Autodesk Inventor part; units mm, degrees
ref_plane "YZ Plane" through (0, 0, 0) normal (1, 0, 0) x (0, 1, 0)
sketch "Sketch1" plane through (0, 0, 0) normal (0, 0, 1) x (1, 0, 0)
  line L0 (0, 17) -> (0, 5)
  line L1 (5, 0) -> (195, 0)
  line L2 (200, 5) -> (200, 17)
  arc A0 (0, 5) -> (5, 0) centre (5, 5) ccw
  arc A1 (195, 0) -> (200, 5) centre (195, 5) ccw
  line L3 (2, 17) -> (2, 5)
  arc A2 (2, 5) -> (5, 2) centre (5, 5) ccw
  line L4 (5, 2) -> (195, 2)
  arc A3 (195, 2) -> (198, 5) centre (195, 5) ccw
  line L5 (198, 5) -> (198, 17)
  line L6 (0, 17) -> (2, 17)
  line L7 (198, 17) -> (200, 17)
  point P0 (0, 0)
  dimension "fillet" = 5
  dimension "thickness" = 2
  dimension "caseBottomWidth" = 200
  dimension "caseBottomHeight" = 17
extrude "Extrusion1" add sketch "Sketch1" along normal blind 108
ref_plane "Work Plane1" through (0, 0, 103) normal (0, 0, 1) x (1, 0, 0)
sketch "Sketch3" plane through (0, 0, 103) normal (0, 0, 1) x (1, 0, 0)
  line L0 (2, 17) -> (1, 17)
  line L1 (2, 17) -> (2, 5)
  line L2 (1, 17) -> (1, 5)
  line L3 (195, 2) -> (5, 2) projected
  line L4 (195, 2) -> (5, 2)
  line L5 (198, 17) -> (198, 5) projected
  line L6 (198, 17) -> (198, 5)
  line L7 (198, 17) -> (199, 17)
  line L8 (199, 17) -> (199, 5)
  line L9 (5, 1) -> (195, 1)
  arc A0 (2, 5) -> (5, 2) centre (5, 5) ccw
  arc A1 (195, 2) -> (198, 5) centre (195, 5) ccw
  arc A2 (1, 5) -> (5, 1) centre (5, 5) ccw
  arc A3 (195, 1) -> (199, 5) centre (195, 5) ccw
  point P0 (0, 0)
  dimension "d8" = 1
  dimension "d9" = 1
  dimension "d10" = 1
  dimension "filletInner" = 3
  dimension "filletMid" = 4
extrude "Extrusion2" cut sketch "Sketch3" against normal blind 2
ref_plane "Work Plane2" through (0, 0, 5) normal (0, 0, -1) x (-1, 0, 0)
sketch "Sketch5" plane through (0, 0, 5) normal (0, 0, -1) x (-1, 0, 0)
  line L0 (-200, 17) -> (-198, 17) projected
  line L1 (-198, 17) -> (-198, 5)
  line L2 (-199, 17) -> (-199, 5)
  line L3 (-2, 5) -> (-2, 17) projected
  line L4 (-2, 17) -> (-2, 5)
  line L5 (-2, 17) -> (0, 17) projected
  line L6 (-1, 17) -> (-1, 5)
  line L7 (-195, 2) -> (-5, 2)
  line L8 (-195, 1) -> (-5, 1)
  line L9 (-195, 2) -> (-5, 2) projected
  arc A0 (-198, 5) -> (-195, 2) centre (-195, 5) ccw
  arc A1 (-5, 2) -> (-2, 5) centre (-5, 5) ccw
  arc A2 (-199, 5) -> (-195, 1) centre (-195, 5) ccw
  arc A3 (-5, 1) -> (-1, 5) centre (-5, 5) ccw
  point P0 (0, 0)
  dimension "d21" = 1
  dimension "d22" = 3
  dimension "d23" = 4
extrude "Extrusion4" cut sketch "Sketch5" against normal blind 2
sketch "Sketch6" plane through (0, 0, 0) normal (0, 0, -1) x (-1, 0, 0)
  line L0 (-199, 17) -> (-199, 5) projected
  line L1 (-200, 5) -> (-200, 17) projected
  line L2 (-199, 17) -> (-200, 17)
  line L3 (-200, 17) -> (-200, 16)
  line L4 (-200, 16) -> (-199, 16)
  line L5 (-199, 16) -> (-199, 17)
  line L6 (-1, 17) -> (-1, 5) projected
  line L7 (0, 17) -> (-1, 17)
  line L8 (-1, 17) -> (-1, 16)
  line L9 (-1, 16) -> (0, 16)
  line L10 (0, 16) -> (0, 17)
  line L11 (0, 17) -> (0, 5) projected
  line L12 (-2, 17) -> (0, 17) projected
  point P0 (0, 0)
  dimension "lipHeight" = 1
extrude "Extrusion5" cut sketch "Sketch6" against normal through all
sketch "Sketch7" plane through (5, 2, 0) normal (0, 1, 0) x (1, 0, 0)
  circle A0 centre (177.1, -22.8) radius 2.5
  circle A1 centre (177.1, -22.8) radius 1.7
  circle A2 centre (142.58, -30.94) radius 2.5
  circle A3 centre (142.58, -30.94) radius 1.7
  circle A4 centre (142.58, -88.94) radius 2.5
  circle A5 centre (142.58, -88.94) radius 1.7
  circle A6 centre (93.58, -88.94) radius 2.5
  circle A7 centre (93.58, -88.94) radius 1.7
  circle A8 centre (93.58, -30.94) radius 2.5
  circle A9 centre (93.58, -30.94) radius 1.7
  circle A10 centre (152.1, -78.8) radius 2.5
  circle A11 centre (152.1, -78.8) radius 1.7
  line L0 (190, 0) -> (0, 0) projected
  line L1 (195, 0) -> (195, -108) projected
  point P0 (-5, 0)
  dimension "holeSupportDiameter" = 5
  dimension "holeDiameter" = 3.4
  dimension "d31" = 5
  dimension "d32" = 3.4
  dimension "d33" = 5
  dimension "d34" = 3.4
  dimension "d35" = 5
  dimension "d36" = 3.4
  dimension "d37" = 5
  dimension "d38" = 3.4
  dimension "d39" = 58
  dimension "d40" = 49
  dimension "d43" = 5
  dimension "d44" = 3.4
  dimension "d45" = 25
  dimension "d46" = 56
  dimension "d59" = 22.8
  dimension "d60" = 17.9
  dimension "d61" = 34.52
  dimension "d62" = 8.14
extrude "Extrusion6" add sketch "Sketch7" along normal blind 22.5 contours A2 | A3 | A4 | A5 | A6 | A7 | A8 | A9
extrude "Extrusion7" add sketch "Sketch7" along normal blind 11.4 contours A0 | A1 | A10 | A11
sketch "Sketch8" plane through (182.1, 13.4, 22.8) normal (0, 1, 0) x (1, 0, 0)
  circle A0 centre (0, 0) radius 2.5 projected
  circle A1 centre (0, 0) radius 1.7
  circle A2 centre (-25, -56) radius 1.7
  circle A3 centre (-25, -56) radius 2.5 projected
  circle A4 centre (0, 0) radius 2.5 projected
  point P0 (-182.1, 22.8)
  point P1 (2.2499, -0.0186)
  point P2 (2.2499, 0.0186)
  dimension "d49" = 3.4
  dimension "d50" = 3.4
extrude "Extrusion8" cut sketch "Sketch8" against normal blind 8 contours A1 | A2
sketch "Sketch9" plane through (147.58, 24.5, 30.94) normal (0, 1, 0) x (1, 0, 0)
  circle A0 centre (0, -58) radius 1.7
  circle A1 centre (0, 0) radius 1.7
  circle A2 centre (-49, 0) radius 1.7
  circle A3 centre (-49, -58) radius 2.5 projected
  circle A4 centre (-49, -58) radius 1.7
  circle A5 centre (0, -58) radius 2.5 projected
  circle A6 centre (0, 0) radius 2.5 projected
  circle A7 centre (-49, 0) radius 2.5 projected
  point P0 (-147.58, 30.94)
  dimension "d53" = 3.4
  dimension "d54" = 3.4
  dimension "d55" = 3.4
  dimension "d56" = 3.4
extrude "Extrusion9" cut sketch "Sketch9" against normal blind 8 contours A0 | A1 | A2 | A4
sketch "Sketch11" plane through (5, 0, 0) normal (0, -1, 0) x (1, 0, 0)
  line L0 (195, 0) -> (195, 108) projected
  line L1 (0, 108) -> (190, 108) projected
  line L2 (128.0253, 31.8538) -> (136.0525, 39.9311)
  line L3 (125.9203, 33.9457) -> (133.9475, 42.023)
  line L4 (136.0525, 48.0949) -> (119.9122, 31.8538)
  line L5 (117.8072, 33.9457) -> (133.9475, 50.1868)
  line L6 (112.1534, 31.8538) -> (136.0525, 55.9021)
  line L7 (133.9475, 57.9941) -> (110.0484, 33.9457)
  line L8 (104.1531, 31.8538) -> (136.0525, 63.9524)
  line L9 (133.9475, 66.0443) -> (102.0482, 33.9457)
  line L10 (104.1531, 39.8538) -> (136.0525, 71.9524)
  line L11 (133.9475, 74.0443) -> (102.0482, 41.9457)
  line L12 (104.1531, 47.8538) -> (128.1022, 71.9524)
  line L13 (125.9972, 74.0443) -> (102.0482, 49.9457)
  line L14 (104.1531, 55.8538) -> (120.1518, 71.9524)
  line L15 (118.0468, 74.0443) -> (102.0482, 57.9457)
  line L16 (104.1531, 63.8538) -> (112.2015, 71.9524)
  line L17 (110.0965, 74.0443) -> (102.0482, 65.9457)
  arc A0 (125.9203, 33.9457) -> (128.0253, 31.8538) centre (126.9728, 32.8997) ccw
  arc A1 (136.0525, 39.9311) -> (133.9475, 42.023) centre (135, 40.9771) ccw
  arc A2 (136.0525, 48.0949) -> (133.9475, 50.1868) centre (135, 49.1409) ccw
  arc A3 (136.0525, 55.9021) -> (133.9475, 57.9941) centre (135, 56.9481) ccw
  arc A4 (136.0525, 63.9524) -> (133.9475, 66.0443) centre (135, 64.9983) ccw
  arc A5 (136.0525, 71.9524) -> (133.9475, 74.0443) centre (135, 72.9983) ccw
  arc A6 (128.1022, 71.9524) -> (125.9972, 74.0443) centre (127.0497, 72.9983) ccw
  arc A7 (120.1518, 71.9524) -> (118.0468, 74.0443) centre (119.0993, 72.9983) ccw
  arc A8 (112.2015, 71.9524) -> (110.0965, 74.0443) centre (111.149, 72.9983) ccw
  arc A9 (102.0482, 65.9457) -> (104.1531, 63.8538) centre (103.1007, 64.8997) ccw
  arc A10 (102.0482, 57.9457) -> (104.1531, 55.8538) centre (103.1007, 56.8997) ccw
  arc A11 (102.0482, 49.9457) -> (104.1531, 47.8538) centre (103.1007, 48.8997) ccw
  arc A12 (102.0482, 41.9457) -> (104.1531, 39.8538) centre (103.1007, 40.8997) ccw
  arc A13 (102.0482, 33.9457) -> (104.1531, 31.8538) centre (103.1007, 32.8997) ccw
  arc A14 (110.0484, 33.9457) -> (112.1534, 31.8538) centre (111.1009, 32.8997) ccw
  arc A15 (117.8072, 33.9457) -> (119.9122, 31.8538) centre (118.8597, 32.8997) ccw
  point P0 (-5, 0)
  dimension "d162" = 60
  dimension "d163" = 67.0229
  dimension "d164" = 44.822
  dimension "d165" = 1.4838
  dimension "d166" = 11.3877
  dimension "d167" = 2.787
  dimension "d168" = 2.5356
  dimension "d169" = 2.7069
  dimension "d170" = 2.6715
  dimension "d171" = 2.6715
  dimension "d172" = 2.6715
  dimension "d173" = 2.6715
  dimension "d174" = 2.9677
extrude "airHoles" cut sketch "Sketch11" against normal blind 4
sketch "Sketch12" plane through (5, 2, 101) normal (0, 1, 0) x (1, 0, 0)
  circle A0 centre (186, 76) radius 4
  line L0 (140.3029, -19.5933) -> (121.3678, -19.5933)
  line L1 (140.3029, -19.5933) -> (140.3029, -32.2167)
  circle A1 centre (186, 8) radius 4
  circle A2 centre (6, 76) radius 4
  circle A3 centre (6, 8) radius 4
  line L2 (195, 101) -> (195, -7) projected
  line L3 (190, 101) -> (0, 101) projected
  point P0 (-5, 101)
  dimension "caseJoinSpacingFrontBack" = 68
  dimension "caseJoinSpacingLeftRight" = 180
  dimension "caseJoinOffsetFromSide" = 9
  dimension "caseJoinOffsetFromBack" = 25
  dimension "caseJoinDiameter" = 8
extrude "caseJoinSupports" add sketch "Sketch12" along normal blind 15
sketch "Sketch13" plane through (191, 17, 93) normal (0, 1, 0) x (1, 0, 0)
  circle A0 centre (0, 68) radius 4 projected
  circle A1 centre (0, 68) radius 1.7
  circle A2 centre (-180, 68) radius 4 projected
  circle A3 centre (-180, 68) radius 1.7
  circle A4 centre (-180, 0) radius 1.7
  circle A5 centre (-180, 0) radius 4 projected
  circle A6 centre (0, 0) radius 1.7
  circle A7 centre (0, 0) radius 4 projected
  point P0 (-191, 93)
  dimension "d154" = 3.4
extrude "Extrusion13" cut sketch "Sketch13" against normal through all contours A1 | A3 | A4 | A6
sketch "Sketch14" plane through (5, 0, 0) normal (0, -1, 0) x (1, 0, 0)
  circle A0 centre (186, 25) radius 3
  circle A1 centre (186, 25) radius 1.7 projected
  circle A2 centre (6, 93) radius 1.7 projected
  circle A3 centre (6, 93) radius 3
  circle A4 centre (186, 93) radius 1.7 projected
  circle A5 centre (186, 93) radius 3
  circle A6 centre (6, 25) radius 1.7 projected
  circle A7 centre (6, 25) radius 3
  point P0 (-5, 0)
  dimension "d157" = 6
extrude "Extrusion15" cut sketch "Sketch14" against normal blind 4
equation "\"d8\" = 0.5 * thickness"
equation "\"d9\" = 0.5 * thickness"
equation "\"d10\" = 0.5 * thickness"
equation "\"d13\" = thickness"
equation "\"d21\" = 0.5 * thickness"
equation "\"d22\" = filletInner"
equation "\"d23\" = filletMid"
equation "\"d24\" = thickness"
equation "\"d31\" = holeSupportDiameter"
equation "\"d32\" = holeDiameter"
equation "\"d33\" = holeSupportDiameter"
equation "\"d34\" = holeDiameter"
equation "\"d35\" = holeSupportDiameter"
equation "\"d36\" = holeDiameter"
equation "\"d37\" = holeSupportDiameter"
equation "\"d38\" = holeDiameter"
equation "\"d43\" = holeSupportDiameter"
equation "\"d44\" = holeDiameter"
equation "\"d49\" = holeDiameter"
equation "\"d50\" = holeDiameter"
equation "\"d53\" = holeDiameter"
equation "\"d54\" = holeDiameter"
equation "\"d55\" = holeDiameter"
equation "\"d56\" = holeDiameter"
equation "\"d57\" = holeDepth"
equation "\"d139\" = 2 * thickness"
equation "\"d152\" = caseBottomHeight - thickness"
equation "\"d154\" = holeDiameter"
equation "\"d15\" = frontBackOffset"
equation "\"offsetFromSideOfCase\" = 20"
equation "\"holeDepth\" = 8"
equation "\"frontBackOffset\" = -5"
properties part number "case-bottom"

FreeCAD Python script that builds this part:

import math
import FreeCAD as App
import Part
import Sketcher
Q = App.Units.Quantity


def add_polygon(sketch, points):
    """Adds a closed chain of lines whose ends are joined by coincident constraints."""
    first, n = sketch.GeometryCount, len(points)
    for a, b in zip(points, points[1:] + points[:1]):
        sketch.addGeometry(Part.LineSegment(App.Vector(*a, 0), App.Vector(*b, 0)), False)
    for i in range(n):
        sketch.addConstraint(Sketcher.Constraint("Coincident", first + i, 2, first + (i + 1) % n, 1))

doc = App.newDocument("Part")
body = doc.addObject("PartDesign::Body", "Body")

# Sketch on XY plane
sketch1 = body.newObject("Sketcher::SketchObject", "Sketch")
sketch1.AttachmentSupport = (doc.getObject("XY_Plane"), [""])
sketch1.MapMode = "FlatFace"
sketch1.addGeometry(Part.LineSegment(App.Vector(2, 17, 0), App.Vector(0, 17, 0)), False)
sketch1.addGeometry(Part.LineSegment(App.Vector(0, 17, 0), App.Vector(0, 5, 0)), False)
sketch1.addGeometry(Part.ArcOfCircle(Part.Circle(App.Vector(5, 5, 0), App.Vector(0, 0, 1), 5), math.radians(180), math.radians(270)), False)
sketch1.addGeometry(Part.LineSegment(App.Vector(5, 0, 0), App.Vector(195, 0, 0)), False)
sketch1.addGeometry(Part.ArcOfCircle(Part.Circle(App.Vector(195, 5, 0), App.Vector(0, 0, 1), 5), math.radians(-90), math.radians(0)), False)
sketch1.addGeometry(Part.LineSegment(App.Vector(200, 5, 0), App.Vector(200, 17, 0)), False)
sketch1.addGeometry(Part.LineSegment(App.Vector(200, 17, 0), App.Vector(198, 17, 0)), False)
sketch1.addGeometry(Part.LineSegment(App.Vector(198, 17, 0), App.Vector(198, 5, 0)), False)
sketch1.addGeometry(Part.ArcOfCircle(Part.Circle(App.Vector(195, 5, 0), App.Vector(0, 0, 1), 3), math.radians(-90), math.radians(0)), False)
sketch1.addGeometry(Part.LineSegment(App.Vector(195, 2, 0), App.Vector(5, 2, 0)), False)
sketch1.addGeometry(Part.ArcOfCircle(Part.Circle(App.Vector(5, 5, 0), App.Vector(0, 0, 1), 3), math.radians(180), math.radians(270)), False)
sketch1.addGeometry(Part.LineSegment(App.Vector(2, 5, 0), App.Vector(2, 17, 0)), False)
sketch1.addConstraint(Sketcher.Constraint("Coincident", 0, 2, 1, 1))
sketch1.addConstraint(Sketcher.Constraint("Tangent", 1, 2, 2, 1))
sketch1.addConstraint(Sketcher.Constraint("Tangent", 2, 2, 3, 1))
sketch1.addConstraint(Sketcher.Constraint("Tangent", 3, 2, 4, 1))
sketch1.addConstraint(Sketcher.Constraint("Tangent", 4, 2, 5, 1))
sketch1.addConstraint(Sketcher.Constraint("Coincident", 5, 2, 6, 1))
sketch1.addConstraint(Sketcher.Constraint("Coincident", 6, 2, 7, 1))
sketch1.addConstraint(Sketcher.Constraint("Tangent", 7, 2, 8, 2))
sketch1.addConstraint(Sketcher.Constraint("Tangent", 8, 1, 9, 1))
sketch1.addConstraint(Sketcher.Constraint("Tangent", 9, 2, 10, 2))
sketch1.addConstraint(Sketcher.Constraint("Tangent", 10, 1, 11, 1))
sketch1.addConstraint(Sketcher.Constraint("Coincident", 11, 2, 0, 1))
sketch1.addConstraint(Sketcher.Constraint("Horizontal", 0))
sketch1.addConstraint(Sketcher.Constraint("Vertical", 1))
sketch1.addConstraint(Sketcher.Constraint("Horizontal", 3))
sketch1.addConstraint(Sketcher.Constraint("Vertical", 5))
sketch1.addConstraint(Sketcher.Constraint("Horizontal", 6))
sketch1.addConstraint(Sketcher.Constraint("Vertical", 7))
sketch1.addConstraint(Sketcher.Constraint("Horizontal", 9))
sketch1.addConstraint(Sketcher.Constraint("Vertical", 11))
sketch1.addConstraint(Sketcher.Constraint("Coincident", 8, 3, 4, 3))
sketch1.addConstraint(Sketcher.Constraint("Coincident", 10, 3, 2, 3))
sketch1.addConstraint(Sketcher.Constraint("Equal", 2, 4))
sketch1.addConstraint(Sketcher.Constraint("PointOnObject", 0, 2, -2))
sketch1.addConstraint(Sketcher.Constraint("PointOnObject", 2, 2, -1))
sketch1.addConstraint(Sketcher.Constraint("Horizontal", 0, 2, 5, 2))
sketch1.addConstraint(Sketcher.Constraint("Radius", 2, Q("5 mm")))
sketch1.addConstraint(Sketcher.Constraint("DistanceX", 0, 2, 0, 1, Q("2 mm")))
sketch1.addConstraint(Sketcher.Constraint("DistanceY", -1, 1, 0, 2, Q("17 mm")))
sketch1.addConstraint(Sketcher.Constraint("DistanceX", -1, 1, 4, 2, Q("200 mm")))
pad1 = body.newObject("PartDesign::Pad", "Pad")
pad1.Profile = sketch1
pad1.Length = 108

# Sketch on XY plane
sketch2 = body.newObject("Sketcher::SketchObject", "Sketch001")
sketch2.AttachmentSupport = (doc.getObject("XY_Plane"), [""])
sketch2.MapMode = "FlatFace"
sketch2.AttachmentOffset = App.Placement(App.Vector(0, 0, 103), App.Rotation())
sketch2.addGeometry(Part.LineSegment(App.Vector(2, 5, 0), App.Vector(2, 17, 0)), False)
sketch2.addGeometry(Part.LineSegment(App.Vector(2, 17, 0), App.Vector(1, 17, 0)), False)
sketch2.addGeometry(Part.LineSegment(App.Vector(1, 17, 0), App.Vector(1, 5, 0)), False)
sketch2.addGeometry(Part.ArcOfCircle(Part.Circle(App.Vector(5, 5, 0), App.Vector(0, 0, 1), 4), math.radians(180), math.radians(270)), False)
sketch2.addGeometry(Part.LineSegment(App.Vector(5, 1, 0), App.Vector(195, 1, 0)), False)
sketch2.addGeometry(Part.ArcOfCircle(Part.Circle(App.Vector(195, 5, 0), App.Vector(0, 0, 1), 4), math.radians(-90), math.radians(0)), False)
sketch2.addGeometry(Part.LineSegment(App.Vector(199, 5, 0), App.Vector(199, 17, 0)), False)
sketch2.addGeometry(Part.LineSegment(App.Vector(199, 17, 0), App.Vector(198, 17, 0)), False)
sketch2.addGeometry(Part.LineSegment(App.Vector(198, 17, 0), App.Vector(198, 5, 0)), False)
sketch2.addGeometry(Part.ArcOfCircle(Part.Circle(App.Vector(195, 5, 0), App.Vector(0, 0, 1), 3), math.radians(-90), math.radians(0)), False)
sketch2.addGeometry(Part.LineSegment(App.Vector(195, 2, 0), App.Vector(5, 2, 0)), False)
sketch2.addGeometry(Part.ArcOfCircle(Part.Circle(App.Vector(5, 5, 0), App.Vector(0, 0, 1), 3), math.radians(180), math.radians(270)), False)
sketch2.addConstraint(Sketcher.Constraint("Coincident", 0, 2, 1, 1))
sketch2.addConstraint(Sketcher.Constraint("Coincident", 1, 2, 2, 1))
sketch2.addConstraint(Sketcher.Constraint("Tangent", 2, 2, 3, 1))
sketch2.addConstraint(Sketcher.Constraint("Tangent", 3, 2, 4, 1))
sketch2.addConstraint(Sketcher.Constraint("Tangent", 4, 2, 5, 1))
sketch2.addConstraint(Sketcher.Constraint("Tangent", 5, 2, 6, 1))
sketch2.addConstraint(Sketcher.Constraint("Coincident", 6, 2, 7, 1))
sketch2.addConstraint(Sketcher.Constraint("Coincident", 7, 2, 8, 1))
sketch2.addConstraint(Sketcher.Constraint("Tangent", 8, 2, 9, 2))
sketch2.addConstraint(Sketcher.Constraint("Tangent", 9, 1, 10, 1))
sketch2.addConstraint(Sketcher.Constraint("Tangent", 10, 2, 11, 2))
sketch2.addConstraint(Sketcher.Constraint("Tangent", 11, 1, 0, 1))
sketch2.addConstraint(Sketcher.Constraint("Vertical", 0))
sketch2.addConstraint(Sketcher.Constraint("Horizontal", 1))
sketch2.addConstraint(Sketcher.Constraint("Vertical", 2))
sketch2.addConstraint(Sketcher.Constraint("Horizontal", 4))
sketch2.addConstraint(Sketcher.Constraint("Vertical", 6))
sketch2.addConstraint(Sketcher.Constraint("Horizontal", 7))
sketch2.addConstraint(Sketcher.Constraint("Vertical", 8))
sketch2.addConstraint(Sketcher.Constraint("Horizontal", 10))
sketch2.addConstraint(Sketcher.Constraint("Coincident", 9, 3, 5, 3))
sketch2.addConstraint(Sketcher.Constraint("Coincident", 11, 3, 3, 3))
sketch2.addConstraint(Sketcher.Constraint("Equal", 3, 5))
sketch2.addConstraint(Sketcher.Constraint("Horizontal", 1, 2, 6, 2))
sketch2.addConstraint(Sketcher.Constraint("Radius", 3, Q("4 mm")))
sketch2.addConstraint(Sketcher.Constraint("Radius", 9, Q("3 mm")))
sketch2.addConstraint(Sketcher.Constraint("DistanceX", -1, 1, 1, 2, Q("1 mm")))
sketch2.addConstraint(Sketcher.Constraint("DistanceY", -1, 1, 3, 2, Q("1 mm")))
sketch2.addConstraint(Sketcher.Constraint("DistanceX", 4, 1, 4, 2, Q("190 mm")))
sketch2.addConstraint(Sketcher.Constraint("DistanceY", 0, 1, 0, 2, Q("12 mm")))
pocket1 = body.newObject("PartDesign::Pocket", "Pocket")
pocket1.Profile = sketch2
pocket1.Length = 2

# Sketch on XY plane
sketch3 = body.newObject("Sketcher::SketchObject", "Sketch002")
sketch3.AttachmentSupport = (doc.getObject("XY_Plane"), [""])
sketch3.MapMode = "FlatFace"
sketch3.AttachmentOffset = App.Placement(App.Vector(0, 0, 5), App.Rotation())
sketch3.addGeometry(Part.LineSegment(App.Vector(198, 17, 0), App.Vector(199, 17, 0)), False)
sketch3.addGeometry(Part.LineSegment(App.Vector(199, 17, 0), App.Vector(199, 5, 0)), False)
sketch3.addGeometry(Part.ArcOfCircle(Part.Circle(App.Vector(195, 5, 0), App.Vector(0, 0, 1), 4), math.radians(-90), math.radians(0)), False)
sketch3.addGeometry(Part.LineSegment(App.Vector(195, 1, 0), App.Vector(5, 1, 0)), False)
sketch3.addGeometry(Part.ArcOfCircle(Part.Circle(App.Vector(5, 5, 0), App.Vector(0, 0, 1), 4), math.radians(180), math.radians(270)), False)
sketch3.addGeometry(Part.LineSegment(App.Vector(1, 5, 0), App.Vector(1, 17, 0)), False)
sketch3.addGeometry(Part.LineSegment(App.Vector(1, 17, 0), App.Vector(2, 17, 0)), False)
sketch3.addGeometry(Part.LineSegment(App.Vector(2, 17, 0), App.Vector(2, 5, 0)), False)
sketch3.addGeometry(Part.ArcOfCircle(Part.Circle(App.Vector(5, 5, 0), App.Vector(0, 0, 1), 3), math.radians(180), math.radians(270)), False)
sketch3.addGeometry(Part.LineSegment(App.Vector(5, 2, 0), App.Vector(195, 2, 0)), False)
sketch3.addGeometry(Part.ArcOfCircle(Part.Circle(App.Vector(195, 5, 0), App.Vector(0, 0, 1), 3), math.radians(-90), math.radians(0)), False)
sketch3.addGeometry(Part.LineSegment(App.Vector(198, 5, 0), App.Vector(198, 17, 0)), False)
sketch3.addConstraint(Sketcher.Constraint("Coincident", 0, 2, 1, 1))
sketch3.addConstraint(Sketcher.Constraint("Tangent", 1, 2, 2, 2))
sketch3.addConstraint(Sketcher.Constraint("Tangent", 2, 1, 3, 1))
sketch3.addConstraint(Sketcher.Constraint("Tangent", 3, 2, 4, 2))
sketch3.addConstraint(Sketcher.Constraint("Tangent", 4, 1, 5, 1))
sketch3.addConstraint(Sketcher.Constraint("Coincident", 5, 2, 6, 1))
sketch3.addConstraint(Sketcher.Constraint("Coincident", 6, 2, 7, 1))
sketch3.addConstraint(Sketcher.Constraint("Tangent", 7, 2, 8, 1))
sketch3.addConstraint(Sketcher.Constraint("Tangent", 8, 2, 9, 1))
sketch3.addConstraint(Sketcher.Constraint("Tangent", 9, 2, 10, 1))
sketch3.addConstraint(Sketcher.Constraint("Tangent", 10, 2, 11, 1))
sketch3.addConstraint(Sketcher.Constraint("Coincident", 11, 2, 0, 1))
sketch3.addConstraint(Sketcher.Constraint("Horizontal", 0))
sketch3.addConstraint(Sketcher.Constraint("Vertical", 1))
sketch3.addConstraint(Sketcher.Constraint("Horizontal", 3))
sketch3.addConstraint(Sketcher.Constraint("Vertical", 5))
sketch3.addConstraint(Sketcher.Constraint("Horizontal", 6))
sketch3.addConstraint(Sketcher.Constraint("Vertical", 7))
sketch3.addConstraint(Sketcher.Constraint("Horizontal", 9))
sketch3.addConstraint(Sketcher.Constraint("Vertical", 11))
sketch3.addConstraint(Sketcher.Constraint("Coincident", 8, 3, 4, 3))
sketch3.addConstraint(Sketcher.Constraint("Coincident", 10, 3, 2, 3))
sketch3.addConstraint(Sketcher.Constraint("Equal", 2, 4))
sketch3.addConstraint(Sketcher.Constraint("Horizontal", 0, 2, 5, 2))
sketch3.addConstraint(Sketcher.Constraint("Radius", 2, Q("4 mm")))
sketch3.addConstraint(Sketcher.Constraint("Radius", 8, Q("3 mm")))
sketch3.addConstraint(Sketcher.Constraint("DistanceY", -1, 1, 2, 1, Q("1 mm")))
sketch3.addConstraint(Sketcher.Constraint("DistanceX", -1, 1, 4, 1, Q("1 mm")))
sketch3.addConstraint(Sketcher.Constraint("DistanceX", 3, 2, 3, 1, Q("190 mm")))
sketch3.addConstraint(Sketcher.Constraint("DistanceY", 1, 2, 1, 1, Q("12 mm")))
pocket2 = body.newObject("PartDesign::Pocket", "Pocket001")
pocket2.Profile = sketch3
pocket2.Length = 2
pocket2.Reversed = True

# Sketch on XY plane
sketch4 = body.newObject("Sketcher::SketchObject", "Sketch003")
sketch4.AttachmentSupport = (doc.getObject("XY_Plane"), [""])
sketch4.MapMode = "FlatFace"
add_polygon(sketch4, [(199, 16), (199, 17), (200, 17), (200, 16)])  # lines 0-3
add_polygon(sketch4, [(0, 17), (1, 17), (1, 16), (0, 16)])  # lines 4-7
sketch4.addConstraint(Sketcher.Constraint("Vertical", 0))
sketch4.addConstraint(Sketcher.Constraint("Horizontal", 1))
sketch4.addConstraint(Sketcher.Constraint("Vertical", 2))
sketch4.addConstraint(Sketcher.Constraint("Horizontal", 3))
sketch4.addConstraint(Sketcher.Constraint("Horizontal", 4))
sketch4.addConstraint(Sketcher.Constraint("Vertical", 5))
sketch4.addConstraint(Sketcher.Constraint("Horizontal", 6))
sketch4.addConstraint(Sketcher.Constraint("Vertical", 7))
sketch4.addConstraint(Sketcher.Constraint("PointOnObject", 6, 2, -2))
sketch4.addConstraint(Sketcher.Constraint("Horizontal", 1, 2, 4, 2))
sketch4.addConstraint(Sketcher.Constraint("Horizontal", 3, 2, 5, 2))
sketch4.addConstraint(Sketcher.Constraint("Equal", 3, 4))
sketch4.addConstraint(Sketcher.Constraint("Equal", 6, 0))
sketch4.addConstraint(Sketcher.Constraint("DistanceX", 1, 1, 1, 2, Q("1 mm")))
sketch4.addConstraint(Sketcher.Constraint("DistanceX", -1, 1, 0, 2, Q("199 mm")))
sketch4.addConstraint(Sketcher.Constraint("DistanceY", -1, 1, 0, 2, Q("17 mm")))
pocket3 = body.newObject("PartDesign::Pocket", "Pocket002")
pocket3.Profile = sketch4
pocket3.Type = "ThroughAll"
pocket3.Reversed = True

# Sketch on XZ plane
sketch5 = body.newObject("Sketcher::SketchObject", "Sketch004")
sketch5.AttachmentSupport = (doc.getObject("XZ_Plane"), [""])
sketch5.MapMode = "FlatFace"
sketch5.AttachmentOffset = App.Placement(App.Vector(0, 0, -2), App.Rotation())
sketch5.addGeometry(Part.Circle(App.Vector(147.6, 30.9, 0), App.Vector(0, 0, 1), 2.5), False)
sketch5.addGeometry(Part.Circle(App.Vector(147.6, 88.9, 0), App.Vector(0, 0, 1), 2.5), False)
sketch5.addGeometry(Part.Circle(App.Vector(98.6, 88.9, 0), App.Vector(0, 0, 1), 2.5), False)
sketch5.addGeometry(Part.Circle(App.Vector(98.6, 30.9, 0), App.Vector(0, 0, 1), 2.5), False)
sketch5.addConstraint(Sketcher.Constraint("Equal", 0, 1))
sketch5.addConstraint(Sketcher.Constraint("Equal", 1, 2))
sketch5.addConstraint(Sketcher.Constraint("Equal", 2, 3))
sketch5.addConstraint(Sketcher.Constraint("Horizontal", 1, 3, 2, 3))
sketch5.addConstraint(Sketcher.Constraint("Horizontal", 0, 3, 3, 3))
sketch5.addConstraint(Sketcher.Constraint("Vertical", 0, 3, 1, 3))
sketch5.addConstraint(Sketcher.Constraint("Vertical", 2, 3, 3, 3))
sketch5.addConstraint(Sketcher.Constraint("Diameter", 0, Q("5 mm")))
sketch5.addConstraint(Sketcher.Constraint("DistanceY", 0, 3, 1, 3, Q("58 mm")))
sketch5.addConstraint(Sketcher.Constraint("DistanceX", 2, 3, 1, 3, Q("49 mm")))
sketch5.addConstraint(Sketcher.Constraint("DistanceX", -1, 1, 0, 3, Q("147.58 mm")))
sketch5.addConstraint(Sketcher.Constraint("DistanceY", -1, 1, 0, 3, Q("30.94 mm")))
pad2 = body.newObject("PartDesign::Pad", "Pad001")
pad2.Profile = sketch5
pad2.Length = 22.5
pad2.Reversed = True

# Sketch on XZ plane
sketch6 = body.newObject("Sketcher::SketchObject", "Sketch005")
sketch6.AttachmentSupport = (doc.getObject("XZ_Plane"), [""])
sketch6.MapMode = "FlatFace"
sketch6.AttachmentOffset = App.Placement(App.Vector(0, 0, -2), App.Rotation())
sketch6.addGeometry(Part.Circle(App.Vector(182.1, 22.8, 0), App.Vector(0, 0, 1), 2.5), False)
sketch6.addGeometry(Part.Circle(App.Vector(157.1, 78.8, 0), App.Vector(0, 0, 1), 2.5), False)
sketch6.addConstraint(Sketcher.Constraint("Equal", 0, 1))
sketch6.addConstraint(Sketcher.Constraint("Diameter", 0, Q("5 mm")))
sketch6.addConstraint(Sketcher.Constraint("DistanceX", 1, 3, 0, 3, Q("25 mm")))
sketch6.addConstraint(Sketcher.Constraint("DistanceY", 0, 3, 1, 3, Q("56 mm")))
sketch6.addConstraint(Sketcher.Constraint("DistanceY", -1, 1, 0, 3, Q("22.8 mm")))
sketch6.addConstraint(Sketcher.Constraint("DistanceX", -1, 1, 0, 3, Q("182.1 mm")))
pad3 = body.newObject("PartDesign::Pad", "Pad002")
pad3.Profile = sketch6
pad3.Length = 11.4
pad3.Reversed = True

# Sketch on XZ plane
sketch7 = body.newObject("Sketcher::SketchObject", "Sketch006")
sketch7.AttachmentSupport = (doc.getObject("XZ_Plane"), [""])
sketch7.MapMode = "FlatFace"
sketch7.AttachmentOffset = App.Placement(App.Vector(0, 0, -13.4), App.Rotation())
sketch7.addGeometry(Part.Circle(App.Vector(182.1, 22.8, 0), App.Vector(0, 0, 1), 1.7), False)
sketch7.addGeometry(Part.Circle(App.Vector(157.1, 78.8, 0), App.Vector(0, 0, 1), 1.7), False)
sketch7.addConstraint(Sketcher.Constraint("Equal", 0, 1))
sketch7.addConstraint(Sketcher.Constraint("Diameter", 0, Q("3.4 mm")))
sketch7.addConstraint(Sketcher.Constraint("DistanceX", 1, 3, 0, 3, Q("25 mm")))
sketch7.addConstraint(Sketcher.Constraint("DistanceY", 0, 3, 1, 3, Q("56 mm")))
sketch7.addConstraint(Sketcher.Constraint("DistanceX", -1, 1, 0, 3, Q("182.1 mm")))
sketch7.addConstraint(Sketcher.Constraint("DistanceY", -1, 1, 0, 3, Q("22.8 mm")))
pocket4 = body.newObject("PartDesign::Pocket", "Pocket003")
pocket4.Profile = sketch7
pocket4.Length = 8
pocket4.Reversed = True

# Sketch on XZ plane
sketch8 = body.newObject("Sketcher::SketchObject", "Sketch007")
sketch8.AttachmentSupport = (doc.getObject("XZ_Plane"), [""])
sketch8.MapMode = "FlatFace"
sketch8.AttachmentOffset = App.Placement(App.Vector(0, 0, -24.5), App.Rotation())
sketch8.addGeometry(Part.Circle(App.Vector(147.6, 88.9, 0), App.Vector(0, 0, 1), 1.7), False)
sketch8.addGeometry(Part.Circle(App.Vector(147.6, 30.9, 0), App.Vector(0, 0, 1), 1.7), False)
sketch8.addGeometry(Part.Circle(App.Vector(98.6, 30.9, 0), App.Vector(0, 0, 1), 1.7), False)
sketch8.addGeometry(Part.Circle(App.Vector(98.6, 88.9, 0), App.Vector(0, 0, 1), 1.7), False)
sketch8.addConstraint(Sketcher.Constraint("Equal", 0, 1))
sketch8.addConstraint(Sketcher.Constraint("Equal", 1, 2))
sketch8.addConstraint(Sketcher.Constraint("Equal", 2, 3))
sketch8.addConstraint(Sketcher.Constraint("Horizontal", 1, 3, 2, 3))
sketch8.addConstraint(Sketcher.Constraint("Horizontal", 0, 3, 3, 3))
sketch8.addConstraint(Sketcher.Constraint("Vertical", 0, 3, 1, 3))
sketch8.addConstraint(Sketcher.Constraint("Vertical", 2, 3, 3, 3))
sketch8.addConstraint(Sketcher.Constraint("Diameter", 0, Q("3.4 mm")))
sketch8.addConstraint(Sketcher.Constraint("DistanceY", 1, 3, 0, 3, Q("58 mm")))
sketch8.addConstraint(Sketcher.Constraint("DistanceX", 2, 3, 1, 3, Q("49 mm")))
sketch8.addConstraint(Sketcher.Constraint("DistanceX", -1, 1, 0, 3, Q("147.58 mm")))
sketch8.addConstraint(Sketcher.Constraint("DistanceY", -1, 1, 0, 3, Q("88.94 mm")))
pocket5 = body.newObject("PartDesign::Pocket", "Pocket004")
pocket5.Profile = sketch8
pocket5.Length = 8
pocket5.Reversed = True

# Sketch on XZ plane
sketch9 = body.newObject("Sketcher::SketchObject", "Sketch008")
sketch9.AttachmentSupport = (doc.getObject("XZ_Plane"), [""])
sketch9.MapMode = "FlatFace"
sketch9.addGeometry(Part.ArcOfCircle(Part.Circle(App.Vector(132, 32.9, 0), App.Vector(0, 0, 1), 1.5), math.radians(135), math.radians(315)), False)
sketch9.addGeometry(Part.LineSegment(App.Vector(133, 31.9, 0), App.Vector(141.1, 39.9, 0)), False)
sketch9.addGeometry(Part.ArcOfCircle(Part.Circle(App.Vector(140, 41, 0), App.Vector(0, 0, 1), 1.5), math.radians(-45), math.radians(135)), False)
sketch9.addGeometry(Part.LineSegment(App.Vector(138.9, 42, 0), App.Vector(130.9, 33.9, 0)), False)
sketch9.addGeometry(Part.LineSegment(App.Vector(124.9, 31.9, 0), App.Vector(141.1, 48.1, 0)), False)
sketch9.addGeometry(Part.ArcOfCircle(Part.Circle(App.Vector(140, 49.1, 0), App.Vector(0, 0, 1), 1.5), math.radians(-45), math.radians(135)), False)
sketch9.addGeometry(Part.LineSegment(App.Vector(138.9, 50.2, 0), App.Vector(122.8, 33.9, 0)), False)
sketch9.addGeometry(Part.ArcOfCircle(Part.Circle(App.Vector(123.9, 32.9, 0), App.Vector(0, 0, 1), 1.5), math.radians(135), math.radians(315)), False)
sketch9.addGeometry(Part.ArcOfCircle(Part.Circle(App.Vector(116.1, 32.9, 0), App.Vector(0, 0, 1), 1.5), math.radians(135), math.radians(315)), False)
sketch9.addGeometry(Part.LineSegment(App.Vector(117.2, 31.9, 0), App.Vector(141.1, 55.9, 0)), False)
sketch9.addGeometry(Part.ArcOfCircle(Part.Circle(App.Vector(140, 56.9, 0), App.Vector(0, 0, 1), 1.5), math.radians(-45), math.radians(135)), False)
sketch9.addGeometry(Part.LineSegment(App.Vector(138.9, 58, 0), App.Vector(115, 33.9, 0)), False)
sketch9.addGeometry(Part.ArcOfCircle(Part.Circle(App.Vector(108.1, 32.9, 0), App.Vector(0, 0, 1), 1.5), math.radians(135), math.radians(315)), False)
sketch9.addGeometry(Part.LineSegment(App.Vector(109.2, 31.9, 0), App.Vector(141.1, 64, 0)), False)
sketch9.addGeometry(Part.ArcOfCircle(Part.Circle(App.Vector(140, 65, 0), App.Vector(0, 0, 1), 1.5), math.radians(-45), math.radians(135)), False)
sketch9.addGeometry(Part.LineSegment(App.Vector(138.9, 66, 0), App.Vector(107, 33.9, 0)), False)
sketch9.addGeometry(Part.ArcOfCircle(Part.Circle(App.Vector(108.1, 40.9, 0), App.Vector(0, 0, 1), 1.5), math.radians(135), math.radians(315)), False)
sketch9.addGeometry(Part.LineSegment(App.Vector(109.2, 39.9, 0), App.Vector(141.1, 72, 0)), False)
sketch9.addGeometry(Part.ArcOfCircle(Part.Circle(App.Vector(140, 73, 0), App.Vector(0, 0, 1), 1.5), math.radians(-45), math.radians(135)), False)
sketch9.addGeometry(Part.LineSegment(App.Vector(138.9, 74, 0), App.Vector(107, 41.9, 0)), False)
sketch9.addGeometry(Part.ArcOfCircle(Part.Circle(App.Vector(108.1, 48.9, 0), App.Vector(0, 0, 1), 1.5), math.radians(135), math.radians(315)), False)
sketch9.addGeometry(Part.LineSegment(App.Vector(109.2, 47.9, 0), App.Vector(133.1, 72, 0)), False)
sketch9.addGeometry(Part.ArcOfCircle(Part.Circle(App.Vector(132, 73, 0), App.Vector(0, 0, 1), 1.5), math.radians(-45), math.radians(135)), False)
sketch9.addGeometry(Part.LineSegment(App.Vector(131, 74, 0), App.Vector(107, 49.9, 0)), False)
sketch9.addGeometry(Part.ArcOfCircle(Part.Circle(App.Vector(108.1, 56.9, 0), App.Vector(0, 0, 1), 1.5), math.radians(135), math.radians(315)), False)
sketch9.addGeometry(Part.LineSegment(App.Vector(109.2, 55.9, 0), App.Vector(125.2, 72, 0)), False)
sketch9.addGeometry(Part.ArcOfCircle(Part.Circle(App.Vector(124.1, 73, 0), App.Vector(0, 0, 1), 1.5), math.radians(-45), math.radians(135)), False)
sketch9.addGeometry(Part.LineSegment(App.Vector(123, 74, 0), App.Vector(107, 57.9, 0)), False)
sketch9.addGeometry(Part.ArcOfCircle(Part.Circle(App.Vector(108.1, 64.9, 0), App.Vector(0, 0, 1), 1.5), math.radians(135), math.radians(315)), False)
sketch9.addGeometry(Part.LineSegment(App.Vector(109.2, 63.9, 0), App.Vector(117.2, 72, 0)), False)
sketch9.addGeometry(Part.ArcOfCircle(Part.Circle(App.Vector(116.1, 73, 0), App.Vector(0, 0, 1), 1.5), math.radians(-45), math.radians(135)), False)
sketch9.addGeometry(Part.LineSegment(App.Vector(115.1, 74, 0), App.Vector(107, 65.9, 0)), False)
sketch9.addConstraint(Sketcher.Constraint("Tangent", 0, 2, 1, 1))
sketch9.addConstraint(Sketcher.Constraint("Tangent", 1, 2, 2, 1))
sketch9.addConstraint(Sketcher.Constraint("Tangent", 2, 2, 3, 1))
sketch9.addConstraint(Sketcher.Constraint("Tangent", 3, 2, 0, 1))
sketch9.addConstraint(Sketcher.Constraint("Tangent", 4, 2, 5, 1))
sketch9.addConstraint(Sketcher.Constraint("Tangent", 5, 2, 6, 1))
sketch9.addConstraint(Sketcher.Constraint("Tangent", 6, 2, 7, 1))
sketch9.addConstraint(Sketcher.Constraint("Tangent", 7, 2, 4, 1))
sketch9.addConstraint(Sketcher.Constraint("Tangent", 8, 2, 9, 1))
sketch9.addConstraint(Sketcher.Constraint("Tangent", 9, 2, 10, 1))
sketch9.addConstraint(Sketcher.Constraint("Tangent", 10, 2, 11, 1))
sketch9.addConstraint(Sketcher.Constraint("Tangent", 11, 2, 8, 1))
sketch9.addConstraint(Sketcher.Constraint("Tangent", 12, 2, 13, 1))
sketch9.addConstraint(Sketcher.Constraint("Tangent", 13, 2, 14, 1))
sketch9.addConstraint(Sketcher.Constraint("Tangent", 14, 2, 15, 1))
sketch9.addConstraint(Sketcher.Constraint("Tangent", 15, 2, 12, 1))
sketch9.addConstraint(Sketcher.Constraint("Tangent", 16, 2, 17, 1))
sketch9.addConstraint(Sketcher.Constraint("Tangent", 17, 2, 18, 1))
sketch9.addConstraint(Sketcher.Constraint("Tangent", 18, 2, 19, 1))
sketch9.addConstraint(Sketcher.Constraint("Tangent", 19, 2, 16, 1))
sketch9.addConstraint(Sketcher.Constraint("Tangent", 20, 2, 21, 1))
sketch9.addConstraint(Sketcher.Constraint("Tangent", 21, 2, 22, 1))
sketch9.addConstraint(Sketcher.Constraint("Tangent", 22, 2, 23, 1))
sketch9.addConstraint(Sketcher.Constraint("Tangent", 23, 2, 20, 1))
sketch9.addConstraint(Sketcher.Constraint("Tangent", 24, 2, 25, 1))
sketch9.addConstraint(Sketcher.Constraint("Tangent", 25, 2, 26, 1))
sketch9.addConstraint(Sketcher.Constraint("Tangent", 26, 2, 27, 1))
sketch9.addConstraint(Sketcher.Constraint("Tangent", 27, 2, 24, 1))
sketch9.addConstraint(Sketcher.Constraint("Tangent", 28, 2, 29, 1))
sketch9.addConstraint(Sketcher.Constraint("Tangent", 29, 2, 30, 1))
sketch9.addConstraint(Sketcher.Constraint("Tangent", 30, 2, 31, 1))
sketch9.addConstraint(Sketcher.Constraint("Tangent", 31, 2, 28, 1))
sketch9.addConstraint(Sketcher.Constraint("Equal", 0, 2))
sketch9.addConstraint(Sketcher.Constraint("Equal", 2, 5))
sketch9.addConstraint(Sketcher.Constraint("Equal", 5, 7))
sketch9.addConstraint(Sketcher.Constraint("Equal", 7, 8))
sketch9.addConstraint(Sketcher.Constraint("Equal", 8, 10))
sketch9.addConstraint(Sketcher.Constraint("Equal", 10, 12))
sketch9.addConstraint(Sketcher.Constraint("Equal", 12, 14))
sketch9.addConstraint(Sketcher.Constraint("Equal", 14, 16))
sketch9.addConstraint(Sketcher.Constraint("Equal", 16, 18))
sketch9.addConstraint(Sketcher.Constraint("Equal", 18, 20))
sketch9.addConstraint(Sketcher.Constraint("Equal", 20, 22))
sketch9.addConstraint(Sketcher.Constraint("Equal", 22, 24))
sketch9.addConstraint(Sketcher.Constraint("Equal", 24, 26))
sketch9.addConstraint(Sketcher.Constraint("Equal", 26, 28))
sketch9.addConstraint(Sketcher.Constraint("Equal", 28, 30))
sketch9.addConstraint(Sketcher.Constraint("Parallel", 3, 4))
sketch9.addConstraint(Sketcher.Constraint("Parallel", 6, 9))
sketch9.addConstraint(Sketcher.Constraint("Parallel", 11, 13))
sketch9.addConstraint(Sketcher.Constraint("Parallel", 15, 17))
sketch9.addConstraint(Sketcher.Constraint("Parallel", 19, 21))
sketch9.addConstraint(Sketcher.Constraint("Parallel", 23, 25))
sketch9.addConstraint(Sketcher.Constraint("Parallel", 27, 29))
sketch9.addConstraint(Sketcher.Constraint("Horizontal", 0, 3, 7, 3))
sketch9.addConstraint(Sketcher.Constraint("Horizontal", 7, 3, 8, 3))
sketch9.addConstraint(Sketcher.Constraint("Horizontal", 8, 3, 12, 3))
sketch9.addConstraint(Sketcher.Constraint("Horizontal", 18, 3, 22, 3))
sketch9.addConstraint(Sketcher.Constraint("Horizontal", 22, 3, 26, 3))
sketch9.addConstraint(Sketcher.Constraint("Horizontal", 26, 3, 30, 3))
sketch9.addConstraint(Sketcher.Constraint("Vertical", 2, 3, 5, 3))
sketch9.addConstraint(Sketcher.Constraint("Vertical", 5, 3, 10, 3))
sketch9.addConstraint(Sketcher.Constraint("Vertical", 10, 3, 14, 3))
sketch9.addConstraint(Sketcher.Constraint("Vertical", 12, 3, 16, 3))
sketch9.addConstraint(Sketcher.Constraint("Vertical", 14, 3, 18, 3))
sketch9.addConstraint(Sketcher.Constraint("Vertical", 16, 3, 20, 3))
sketch9.addConstraint(Sketcher.Constraint("Vertical", 20, 3, 24, 3))
sketch9.addConstraint(Sketcher.Constraint("Vertical", 24, 3, 28, 3))
sketch9.addConstraint(Sketcher.Constraint("Radius", 0, Q("1.4839 mm")))
sketch9.addConstraint(Sketcher.Constraint("DistanceX", -1, 1, 2, 3, Q("140 mm")))
sketch9.addConstraint(Sketcher.Constraint("DistanceY", 12, 3, 16, 3, Q("8 mm")))
sketch9.addConstraint(Sketcher.Constraint("DistanceY", 16, 3, 20, 3, Q("8 mm")))
sketch9.addConstraint(Sketcher.Constraint("DistanceY", 20, 3, 24, 3, Q("8 mm")))
sketch9.addConstraint(Sketcher.Constraint("DistanceY", 24, 3, 28, 3, Q("8 mm")))
sketch9.addConstraint(Sketcher.Constraint("Distance", 1, Q("11.3877 mm")))
sketch9.addConstraint(Sketcher.Constraint("Distance", 9, Q("33.904 mm")))
sketch9.addConstraint(Sketcher.Constraint("Distance", 21, Q("33.975 mm")))
sketch9.addConstraint(Sketcher.Constraint("DistanceY", -1, 1, 2, 3, Q("40.977 mm")))
sketch9.addConstraint(Sketcher.Constraint("DistanceY", -1, 1, 5, 3, Q("49.141 mm")))
sketch9.addConstraint(Sketcher.Constraint("DistanceX", -1, 1, 8, 3, Q("116.101 mm")))
pocket6 = body.newObject("PartDesign::Pocket", "Pocket005")
pocket6.Profile = sketch9
pocket6.Length = 4

# Sketch on XZ plane
sketch10 = body.newObject("Sketcher::SketchObject", "Sketch009")
sketch10.AttachmentSupport = (doc.getObject("XZ_Plane"), [""])
sketch10.MapMode = "FlatFace"
sketch10.AttachmentOffset = App.Placement(App.Vector(0, 0, -2), App.Rotation())
sketch10.addGeometry(Part.Circle(App.Vector(191, 25, 0), App.Vector(0, 0, 1), 4), False)
sketch10.addGeometry(Part.Circle(App.Vector(191, 93, 0), App.Vector(0, 0, 1), 4), False)
sketch10.addGeometry(Part.Circle(App.Vector(11, 25, 0), App.Vector(0, 0, 1), 4), False)
sketch10.addGeometry(Part.Circle(App.Vector(11, 93, 0), App.Vector(0, 0, 1), 4), False)
sketch10.addConstraint(Sketcher.Constraint("Equal", 0, 1))
sketch10.addConstraint(Sketcher.Constraint("Equal", 1, 2))
sketch10.addConstraint(Sketcher.Constraint("Equal", 2, 3))
sketch10.addConstraint(Sketcher.Constraint("Horizontal", 0, 3, 2, 3))
sketch10.addConstraint(Sketcher.Constraint("Horizontal", 1, 3, 3, 3))
sketch10.addConstraint(Sketcher.Constraint("Vertical", 0, 3, 1, 3))
sketch10.addConstraint(Sketcher.Constraint("Vertical", 2, 3, 3, 3))
sketch10.addConstraint(Sketcher.Constraint("Diameter", 0, Q("8 mm")))
sketch10.addConstraint(Sketcher.Constraint("DistanceY", -1, 1, 0, 3, Q("25 mm")))
sketch10.addConstraint(Sketcher.Constraint("DistanceY", 0, 3, 1, 3, Q("68 mm")))
sketch10.addConstraint(Sketcher.Constraint("DistanceX", 2, 3, 0, 3, Q("180 mm")))
sketch10.addConstraint(Sketcher.Constraint("DistanceX", -1, 1, 0, 3, Q("191 mm")))
pad4 = body.newObject("PartDesign::Pad", "Pad003")
pad4.Profile = sketch10
pad4.Length = 15
pad4.Reversed = True

# Sketch on XZ plane
sketch11 = body.newObject("Sketcher::SketchObject", "Sketch010")
sketch11.AttachmentSupport = (doc.getObject("XZ_Plane"), [""])
sketch11.MapMode = "FlatFace"
sketch11.AttachmentOffset = App.Placement(App.Vector(0, 0, -17), App.Rotation())
sketch11.addGeometry(Part.Circle(App.Vector(191, 25, 0), App.Vector(0, 0, 1), 1.7), False)
sketch11.addGeometry(Part.Circle(App.Vector(11, 25, 0), App.Vector(0, 0, 1), 1.7), False)
sketch11.addGeometry(Part.Circle(App.Vector(11, 93, 0), App.Vector(0, 0, 1), 1.7), False)
sketch11.addGeometry(Part.Circle(App.Vector(191, 93, 0), App.Vector(0, 0, 1), 1.7), False)
sketch11.addConstraint(Sketcher.Constraint("Equal", 0, 1))
sketch11.addConstraint(Sketcher.Constraint("Equal", 1, 2))
sketch11.addConstraint(Sketcher.Constraint("Equal", 2, 3))
sketch11.addConstraint(Sketcher.Constraint("Horizontal", 0, 3, 1, 3))
sketch11.addConstraint(Sketcher.Constraint("Horizontal", 2, 3, 3, 3))
sketch11.addConstraint(Sketcher.Constraint("Vertical", 1, 3, 2, 3))
sketch11.addConstraint(Sketcher.Constraint("Vertical", 0, 3, 3, 3))
sketch11.addConstraint(Sketcher.Constraint("Diameter", 0, Q("3.4 mm")))
sketch11.addConstraint(Sketcher.Constraint("DistanceX", -1, 1, 0, 3, Q("191 mm")))
sketch11.addConstraint(Sketcher.Constraint("DistanceY", -1, 1, 0, 3, Q("25 mm")))
sketch11.addConstraint(Sketcher.Constraint("DistanceX", -1, 1, 1, 3, Q("11 mm")))
sketch11.addConstraint(Sketcher.Constraint("DistanceY", -1, 1, 2, 3, Q("93 mm")))
pocket7 = body.newObject("PartDesign::Pocket", "Pocket006")
pocket7.Profile = sketch11
pocket7.Type = "ThroughAll"
pocket7.Reversed = True

# Sketch on XZ plane
sketch12 = body.newObject("Sketcher::SketchObject", "Sketch011")
sketch12.AttachmentSupport = (doc.getObject("XZ_Plane"), [""])
sketch12.MapMode = "FlatFace"
sketch12.addGeometry(Part.Circle(App.Vector(191, 25, 0), App.Vector(0, 0, 1), 3), False)
sketch12.addGeometry(Part.Circle(App.Vector(191, 25, 0), App.Vector(0, 0, 1), 1.7), False)
sketch12.addGeometry(Part.Circle(App.Vector(11, 93, 0), App.Vector(0, 0, 1), 3), False)
sketch12.addGeometry(Part.Circle(App.Vector(11, 93, 0), App.Vector(0, 0, 1), 1.7), False)
sketch12.addGeometry(Part.Circle(App.Vector(191, 93, 0), App.Vector(0, 0, 1), 3), False)
sketch12.addGeometry(Part.Circle(App.Vector(191, 93, 0), App.Vector(0, 0, 1), 1.7), False)
sketch12.addGeometry(Part.Circle(App.Vector(11, 25, 0), App.Vector(0, 0, 1), 3), False)
sketch12.addGeometry(Part.Circle(App.Vector(11, 25, 0), App.Vector(0, 0, 1), 1.7), False)
sketch12.addConstraint(Sketcher.Constraint("Coincident", 1, 3, 0, 3))
sketch12.addConstraint(Sketcher.Constraint("Coincident", 3, 3, 2, 3))
sketch12.addConstraint(Sketcher.Constraint("Coincident", 5, 3, 4, 3))
sketch12.addConstraint(Sketcher.Constraint("Coincident", 7, 3, 6, 3))
sketch12.addConstraint(Sketcher.Constraint("Equal", 0, 2))
sketch12.addConstraint(Sketcher.Constraint("Equal", 1, 3))
sketch12.addConstraint(Sketcher.Constraint("Equal", 2, 4))
sketch12.addConstraint(Sketcher.Constraint("Equal", 3, 5))
sketch12.addConstraint(Sketcher.Constraint("Equal", 4, 6))
sketch12.addConstraint(Sketcher.Constraint("Equal", 5, 7))
sketch12.addConstraint(Sketcher.Constraint("Horizontal", 3, 3, 4, 3))
sketch12.addConstraint(Sketcher.Constraint("Horizontal", 1, 3, 6, 3))
sketch12.addConstraint(Sketcher.Constraint("Vertical", 1, 3, 4, 3))
sketch12.addConstraint(Sketcher.Constraint("Vertical", 3, 3, 6, 3))
sketch12.addConstraint(Sketcher.Constraint("Diameter", 0, Q("6 mm")))
sketch12.addConstraint(Sketcher.Constraint("Diameter", 1, Q("3.4 mm")))
sketch12.addConstraint(Sketcher.Constraint("DistanceX", -1, 1, 0, 3, Q("191 mm")))
sketch12.addConstraint(Sketcher.Constraint("DistanceY", -1, 1, 0, 3, Q("25 mm")))
sketch12.addConstraint(Sketcher.Constraint("DistanceX", -1, 1, 2, 3, Q("11 mm")))
sketch12.addConstraint(Sketcher.Constraint("DistanceY", -1, 1, 2, 3, Q("93 mm")))
pocket8 = body.newObject("PartDesign::Pocket", "Pocket007")
pocket8.Profile = sketch12
pocket8.Length = 4

doc.recompute()
